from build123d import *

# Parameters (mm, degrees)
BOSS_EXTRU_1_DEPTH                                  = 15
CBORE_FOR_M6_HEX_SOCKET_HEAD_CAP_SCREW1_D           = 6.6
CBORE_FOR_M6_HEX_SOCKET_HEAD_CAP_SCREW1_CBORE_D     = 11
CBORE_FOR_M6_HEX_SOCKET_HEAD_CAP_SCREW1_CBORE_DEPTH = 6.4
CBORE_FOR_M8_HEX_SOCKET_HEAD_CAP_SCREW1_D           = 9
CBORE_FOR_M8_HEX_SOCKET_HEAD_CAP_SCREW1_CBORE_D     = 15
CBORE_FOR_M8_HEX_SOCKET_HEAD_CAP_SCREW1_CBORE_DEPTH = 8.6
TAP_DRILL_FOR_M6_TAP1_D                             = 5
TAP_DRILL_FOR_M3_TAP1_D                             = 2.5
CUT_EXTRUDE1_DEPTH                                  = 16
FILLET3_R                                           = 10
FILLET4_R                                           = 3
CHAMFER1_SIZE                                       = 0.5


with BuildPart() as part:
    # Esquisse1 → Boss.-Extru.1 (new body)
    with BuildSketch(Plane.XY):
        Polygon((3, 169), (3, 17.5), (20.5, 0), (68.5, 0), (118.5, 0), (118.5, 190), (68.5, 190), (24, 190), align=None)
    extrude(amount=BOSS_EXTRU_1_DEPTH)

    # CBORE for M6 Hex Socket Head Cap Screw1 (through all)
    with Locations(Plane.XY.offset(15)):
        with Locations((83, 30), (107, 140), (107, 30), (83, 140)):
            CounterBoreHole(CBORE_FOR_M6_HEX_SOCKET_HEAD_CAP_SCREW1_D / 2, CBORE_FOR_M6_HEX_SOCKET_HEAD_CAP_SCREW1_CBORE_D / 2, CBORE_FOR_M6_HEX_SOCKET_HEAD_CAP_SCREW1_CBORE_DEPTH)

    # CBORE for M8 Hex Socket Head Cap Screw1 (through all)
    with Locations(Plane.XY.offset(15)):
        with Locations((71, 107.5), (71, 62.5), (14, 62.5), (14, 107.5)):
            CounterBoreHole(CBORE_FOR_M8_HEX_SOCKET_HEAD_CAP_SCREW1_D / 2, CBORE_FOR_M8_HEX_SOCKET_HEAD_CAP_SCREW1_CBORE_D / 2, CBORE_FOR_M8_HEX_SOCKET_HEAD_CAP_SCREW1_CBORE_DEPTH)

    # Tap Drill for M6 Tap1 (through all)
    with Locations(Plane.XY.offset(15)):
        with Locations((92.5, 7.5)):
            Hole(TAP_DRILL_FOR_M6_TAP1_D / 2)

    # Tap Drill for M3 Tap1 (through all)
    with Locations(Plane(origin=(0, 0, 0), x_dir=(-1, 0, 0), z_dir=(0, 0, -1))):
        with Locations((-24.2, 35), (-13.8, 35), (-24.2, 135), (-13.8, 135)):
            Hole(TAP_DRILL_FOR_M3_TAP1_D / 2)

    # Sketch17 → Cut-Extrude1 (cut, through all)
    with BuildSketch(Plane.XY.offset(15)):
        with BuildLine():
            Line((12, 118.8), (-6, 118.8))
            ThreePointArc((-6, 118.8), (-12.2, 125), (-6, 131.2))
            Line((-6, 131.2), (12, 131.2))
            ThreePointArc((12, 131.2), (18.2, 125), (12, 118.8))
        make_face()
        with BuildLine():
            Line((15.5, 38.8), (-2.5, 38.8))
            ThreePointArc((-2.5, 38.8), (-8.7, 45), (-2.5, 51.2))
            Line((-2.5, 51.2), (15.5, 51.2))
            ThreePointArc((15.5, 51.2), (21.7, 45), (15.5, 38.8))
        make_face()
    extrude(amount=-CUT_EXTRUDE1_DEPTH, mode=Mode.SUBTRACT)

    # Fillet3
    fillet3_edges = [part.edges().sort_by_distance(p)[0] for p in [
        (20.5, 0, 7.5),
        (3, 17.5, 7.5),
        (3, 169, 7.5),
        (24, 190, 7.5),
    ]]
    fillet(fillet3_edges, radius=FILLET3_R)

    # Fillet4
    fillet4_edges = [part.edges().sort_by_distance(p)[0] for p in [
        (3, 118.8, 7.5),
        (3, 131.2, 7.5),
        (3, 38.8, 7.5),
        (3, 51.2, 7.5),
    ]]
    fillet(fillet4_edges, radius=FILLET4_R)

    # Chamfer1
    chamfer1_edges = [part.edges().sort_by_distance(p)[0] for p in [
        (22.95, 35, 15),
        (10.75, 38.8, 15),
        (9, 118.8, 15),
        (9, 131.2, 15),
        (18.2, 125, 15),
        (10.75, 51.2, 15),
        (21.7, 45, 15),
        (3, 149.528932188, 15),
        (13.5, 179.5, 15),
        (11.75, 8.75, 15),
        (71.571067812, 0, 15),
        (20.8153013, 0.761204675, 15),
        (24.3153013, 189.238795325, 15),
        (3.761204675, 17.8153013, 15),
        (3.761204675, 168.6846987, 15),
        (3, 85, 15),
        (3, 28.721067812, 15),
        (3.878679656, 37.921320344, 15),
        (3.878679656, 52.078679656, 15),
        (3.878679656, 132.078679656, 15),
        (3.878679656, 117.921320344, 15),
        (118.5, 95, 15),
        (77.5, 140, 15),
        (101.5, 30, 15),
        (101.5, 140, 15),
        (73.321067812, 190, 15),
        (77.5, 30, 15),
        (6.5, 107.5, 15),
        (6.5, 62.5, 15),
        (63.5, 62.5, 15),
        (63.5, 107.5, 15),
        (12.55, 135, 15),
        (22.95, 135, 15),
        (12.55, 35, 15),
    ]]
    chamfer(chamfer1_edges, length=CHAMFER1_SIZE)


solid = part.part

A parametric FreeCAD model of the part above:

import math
import FreeCAD as App
import Part
import Sketcher

V = App.Vector
Q = App.Units.Quantity


def edges_at(feature, points):
    """Names of the edges that pass closest to the given points."""
    edges = feature.Shape.Edges
    near = lambda p: min(range(len(edges)), key=lambda i: edges[i].distToShape(Part.Vertex(*p))[0])
    return sorted({f"Edge{near(p) + 1}" for p in points})


def add_polygon(sketch, points):
    """Adds a closed chain of lines whose ends are joined by coincident constraints."""
    first, n = sketch.GeometryCount, len(points)
    for a, b in zip(points, points[1:] + points[:1]):
        sketch.addGeometry(Part.LineSegment(App.Vector(*a, 0), App.Vector(*b, 0)), False)
    for i in range(n):
        sketch.addConstraint(Sketcher.Constraint("Coincident", first + i, 2, first + (i + 1) % n, 1))

doc = App.newDocument("Part")
body = doc.addObject("PartDesign::Body", "Body")

# Sketch on XY plane
sketch1 = body.newObject("Sketcher::SketchObject", "Sketch")
sketch1.AttachmentSupport = (doc.getObject("XY_Plane"), [""])
sketch1.MapMode = "FlatFace"
add_polygon(sketch1, [(3, 169), (3, 18), (20, 0), (118, 0), (118, 190), (24, 190)])  # lines 0-5
sketch1.addConstraint([
    Sketcher.Constraint("Vertical", 0),
    Sketcher.Constraint("Horizontal", 2),
    Sketcher.Constraint("Vertical", 3),
    Sketcher.Constraint("Horizontal", 4),
    Sketcher.Constraint("PointOnObject", 1, 2, -1),
    Sketcher.Constraint("Perpendicular", 1, 5),
    Sketcher.Constraint("DistanceX", 2, 1, 2, 2, 98.0),
    Sketcher.Constraint("DistanceY", 3, 1, 3, 2, 190.0),
    Sketcher.Constraint("Angle", 1, Q("-45 deg")),
    Sketcher.Constraint("DistanceX", 4, 2, 4, 1, 94.5),
    Sketcher.Constraint("DistanceY", 0, 2, 0, 1, 151.5),
    Sketcher.Constraint("DistanceX", -1, 1, 0, 2, 3.0),
])
pad1 = body.newObject("PartDesign::Pad", "Pad")
pad1.Profile = sketch1
pad1.Length = 15

# Sketch on XY plane
sketch2 = body.newObject("Sketcher::SketchObject", "Sketch001")
sketch2.AttachmentSupport = (doc.getObject("XY_Plane"), [""])
sketch2.MapMode = "FlatFace"
sketch2.AttachmentOffset = App.Placement(V(0, 0, 15), App.Rotation())
sketch2.addGeometry([
    Part.Circle(V(83, 30, 0), V(0, 0, 1), 3.3),
    Part.Circle(V(107, 140, 0), V(0, 0, 1), 3.3),
    Part.Circle(V(107, 30, 0), V(0, 0, 1), 3.3),
    Part.Circle(V(83, 140, 0), V(0, 0, 1), 3.3),
], False)
sketch2.addConstraint([
    Sketcher.Constraint("Equal", 0, 1),
    Sketcher.Constraint("Equal", 1, 2),
    Sketcher.Constraint("Equal", 2, 3),
    Sketcher.Constraint("Horizontal", 0, 3, 2, 3),
    Sketcher.Constraint("Horizontal", 1, 3, 3, 3),
    Sketcher.Constraint("Vertical", 1, 3, 2, 3),
    Sketcher.Constraint("Vertical", 0, 3, 3, 3),
    Sketcher.Constraint("Diameter", 0, 6.6),
    Sketcher.Constraint("DistanceX", -1, 1, 0, 3, 83.0),
    Sketcher.Constraint("DistanceY", -1, 1, 0, 3, 30.0),
    Sketcher.Constraint("DistanceX", -1, 1, 1, 3, 107.0),
    Sketcher.Constraint("DistanceY", -1, 1, 1, 3, 140.0),
])
doc.recompute()
hole = body.newObject("PartDesign::Hole", "Hole")
hole.Profile = sketch2
hole.ThreadType = "None"
hole.Diameter = 6.6
hole.DepthType = "ThroughAll"
hole.HoleCutType = "Counterbore"
hole.HoleCutDiameter = 11
hole.HoleCutDepth = 6.4

# Sketch on XY plane
sketch3 = body.newObject("Sketcher::SketchObject", "Sketch002")
sketch3.AttachmentSupport = (doc.getObject("XY_Plane"), [""])
sketch3.MapMode = "FlatFace"
sketch3.AttachmentOffset = App.Placement(V(0, 0, 15), App.Rotation())
sketch3.addGeometry([
    Part.Circle(V(71, 107.5, 0), V(0, 0, 1), 4.5),
    Part.Circle(V(71, 62.5, 0), V(0, 0, 1), 4.5),
    Part.Circle(V(14, 62.5, 0), V(0, 0, 1), 4.5),
    Part.Circle(V(14, 107.5, 0), V(0, 0, 1), 4.5),
], False)
sketch3.addConstraint([
    Sketcher.Constraint("Equal", 0, 1),
    Sketcher.Constraint("Equal", 1, 2),
    Sketcher.Constraint("Equal", 2, 3),
    Sketcher.Constraint("Horizontal", 1, 3, 2, 3),
    Sketcher.Constraint("Horizontal", 0, 3, 3, 3),
    Sketcher.Constraint("Vertical", 0, 3, 1, 3),
    Sketcher.Constraint("Vertical", 2, 3, 3, 3),
    Sketcher.Constraint("Diameter", 0, 9.0),
    Sketcher.Constraint("DistanceX", -1, 1, 0, 3, 71.0),
    Sketcher.Constraint("DistanceX", -1, 1, 2, 3, 14.0),
    Sketcher.Constraint("DistanceY", 1, 3, 0, 3, 45.0),
    Sketcher.Constraint("DistanceY", -1, 1, 0, 3, 107.5),
])
doc.recompute()
hole2 = body.newObject("PartDesign::Hole", "Hole001")
hole2.Profile = sketch3
hole2.ThreadType = "None"
hole2.Diameter = 9
hole2.DepthType = "ThroughAll"
hole2.HoleCutType = "Counterbore"
hole2.HoleCutDiameter = 15
hole2.HoleCutDepth = 8.6

# Sketch on XY plane
sketch4 = body.newObject("Sketcher::SketchObject", "Sketch003")
sketch4.AttachmentSupport = (doc.getObject("XY_Plane"), [""])
sketch4.MapMode = "FlatFace"
sketch4.AttachmentOffset = App.Placement(V(0, 0, 15), App.Rotation())
sketch4.addGeometry(Part.Circle(V(92.5, 7.5, 0), V(0, 0, 1), 2.5), False)
sketch4.addConstraint([
    Sketcher.Constraint("Diameter", 0, 5.0),
    Sketcher.Constraint("DistanceX", -1, 1, 0, 3, 92.5),
    Sketcher.Constraint("DistanceY", -1, 1, 0, 3, 7.5),
])
doc.recompute()
hole3 = body.newObject("PartDesign::Hole", "Hole002")
hole3.Profile = sketch4
hole3.ThreadType = "None"
hole3.Diameter = 5
hole3.DepthType = "ThroughAll"

# Sketch on XY plane
sketch5 = body.newObject("Sketcher::SketchObject", "Sketch004")
sketch5.AttachmentSupport = (doc.getObject("XY_Plane"), [""])
sketch5.MapMode = "FlatFace"
sketch5.addGeometry([
    Part.Circle(V(24.2, 35, 0), V(0, 0, 1), 1.2),
    Part.Circle(V(13.8, 35, 0), V(0, 0, 1), 1.2),
    Part.Circle(V(24.2, 135, 0), V(0, 0, 1), 1.2),
    Part.Circle(V(13.8, 135, 0), V(0, 0, 1), 1.2),
], False)
sketch5.addConstraint([
    Sketcher.Constraint("Equal", 0, 1),
    Sketcher.Constraint("Equal", 1, 2),
    Sketcher.Constraint("Equal", 2, 3),
    Sketcher.Constraint("Horizontal", 0, 3, 1, 3),
    Sketcher.Constraint("Horizontal", 2, 3, 3, 3),
    Sketcher.Constraint("Vertical", 0, 3, 2, 3),
    Sketcher.Constraint("Vertical", 1, 3, 3, 3),
    Sketcher.Constraint("Diameter", 0, 2.5),
    Sketcher.Constraint("DistanceY", -1, 1, 0, 3, 35.0),
    Sketcher.Constraint("DistanceY", -1, 1, 2, 3, 135.0),
    Sketcher.Constraint("DistanceX", -1, 1, 0, 3, 24.2),
    Sketcher.Constraint("DistanceX", -1, 1, 1, 3, 13.8),
])
doc.recompute()
hole4 = body.newObject("PartDesign::Hole", "Hole003")
hole4.Profile = sketch5
hole4.ThreadType = "None"
hole4.Diameter = 2.5
hole4.DepthType = "ThroughAll"
hole4.Reversed = True

# Sketch on XY plane
sketch6 = body.newObject("Sketcher::SketchObject", "Sketch005")
sketch6.AttachmentSupport = (doc.getObject("XY_Plane"), [""])
sketch6.MapMode = "FlatFace"
sketch6.AttachmentOffset = App.Placement(V(0, 0, 15), App.Rotation())
sketch6.addGeometry([
    Part.LineSegment(V(-6, 119, 0), V(12, 119, 0)),  # 0
    Part.ArcOfCircle(Part.Circle(V(12, 125, 0), V(0, 0, 1), 6), math.radians(-90), math.radians(90)),  # 1
    Part.LineSegment(V(12, 131, 0), V(-6, 131, 0)),  # 2
    Part.ArcOfCircle(Part.Circle(V(-6, 125, 0), V(0, 0, 1), 6), math.radians(90), math.radians(270)),  # 3
    Part.LineSegment(V(-2, 39, 0), V(16, 39, 0)),  # 4
    Part.ArcOfCircle(Part.Circle(V(16, 45, 0), V(0, 0, 1), 6), math.radians(-90), math.radians(90)),  # 5
    Part.LineSegment(V(16, 51, 0), V(-2, 51, 0)),  # 6
    Part.ArcOfCircle(Part.Circle(V(-2, 45, 0), V(0, 0, 1), 6), math.radians(90), math.radians(270)),  # 7
], False)
sketch6.addConstraint([
    Sketcher.Constraint("Tangent", 0, 2, 1, 1),
    Sketcher.Constraint("Tangent", 1, 2, 2, 1),
    Sketcher.Constraint("Tangent", 2, 2, 3, 1),
    Sketcher.Constraint("Tangent", 3, 2, 0, 1),
    Sketcher.Constraint("Tangent", 4, 2, 5, 1),
    Sketcher.Constraint("Tangent", 5, 2, 6, 1),
    Sketcher.Constraint("Tangent", 6, 2, 7, 1),
    Sketcher.Constraint("Tangent", 7, 2, 4, 1),
    Sketcher.Constraint("Horizontal", 0),
    Sketcher.Constraint("Horizontal", 2),
    Sketcher.Constraint("Horizontal", 4),
    Sketcher.Constraint("Horizontal", 6),
    Sketcher.Constraint("Equal", 3, 5),
    Sketcher.Constraint("Equal", 2, 4),
    Sketcher.Constraint("Radius", 1, 6.2),
    Sketcher.Constraint("DistanceX", 0, 1, 0, 2, 18.0),
    Sketcher.Constraint("DistanceX", -1, 1, 1, 3, 12.0),
    Sketcher.Constraint("DistanceY", -1, 1, 1, 3, 125.0),
    Sketcher.Constraint("DistanceY", -1, 1, 5, 3, 45.0),
    Sketcher.Constraint("DistanceX", -1, 1, 5, 3, 15.5),
])
pocket1 = body.newObject("PartDesign::Pocket", "Pocket")
pocket1.Profile = sketch6
pocket1.Type = "ThroughAll"
doc.recompute()

fillet = body.newObject("PartDesign::Fillet", "Fillet")
fillet.Base = (pocket1, edges_at(pocket1, [
    (20.5, 0, 7.5),
    (3, 17.5, 7.5),
    (3, 169, 7.5),
    (24, 190, 7.5),
]))
fillet.Radius = 10
doc.recompute()

fillet2 = body.newObject("PartDesign::Fillet", "Fillet001")
fillet2.Base = (fillet, edges_at(fillet, [
    (3, 118.8, 7.5),
    (3, 131.2, 7.5),
    (3, 38.8, 7.5),
    (3, 51.2, 7.5),
]))
fillet2.Radius = 3
doc.recompute()

chamfer = body.newObject("PartDesign::Chamfer", "Chamfer")
chamfer.Base = (fillet2, edges_at(fillet2, [
    (22.95, 35, 15),
    (10.75, 38.8, 15),
    (9, 118.8, 15),
    (9, 131.2, 15),
    (18.2, 125, 15),
    (10.75, 51.2, 15),
    (21.7, 45, 15),
    (3, 149.529, 15),
    (13.5, 179.5, 15),
    (11.75, 8.75, 15),
    (71.571, 0, 15),
    (20.815, 0.761, 15),
    (24.315, 189.239, 15),
    (3.761, 17.815, 15),
    (3.761, 168.685, 15),
    (3, 85, 15),
    (3, 28.721, 15),
    (3.879, 37.921, 15),
    (3.879, 52.079, 15),
    (3.879, 132.079, 15),
    (3.879, 117.921, 15),
    (118.5, 95, 15),
    (77.5, 140, 15),
    (101.5, 30, 15),
    (101.5, 140, 15),
    (73.321, 190, 15),
    (77.5, 30, 15),
    (6.5, 107.5, 15),
    (6.5, 62.5, 15),
    (63.5, 62.5, 15),
    (63.5, 107.5, 15),
    (12.55, 135, 15),
    (22.95, 135, 15),
    (12.55, 35, 15),
]))
chamfer.Size = 0.5

doc.recompute()
